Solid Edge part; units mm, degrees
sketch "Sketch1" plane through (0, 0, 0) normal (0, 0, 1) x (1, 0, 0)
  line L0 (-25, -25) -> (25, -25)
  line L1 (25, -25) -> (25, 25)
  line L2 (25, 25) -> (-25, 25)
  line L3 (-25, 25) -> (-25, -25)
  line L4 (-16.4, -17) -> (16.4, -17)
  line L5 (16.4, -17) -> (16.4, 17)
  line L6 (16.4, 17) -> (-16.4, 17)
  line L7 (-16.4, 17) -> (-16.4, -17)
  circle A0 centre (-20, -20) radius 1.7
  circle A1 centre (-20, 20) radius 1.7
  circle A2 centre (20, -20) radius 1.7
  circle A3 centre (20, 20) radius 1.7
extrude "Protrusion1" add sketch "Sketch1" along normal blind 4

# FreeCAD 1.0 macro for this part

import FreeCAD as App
import Part
import Sketcher

doc = App.newDocument("Part")
body = doc.addObject("PartDesign::Body", "Body")

# Sketch on XY plane
sketch1 = body.newObject("Sketcher::SketchObject", "Sketch")
sketch1.AttachmentSupport = (doc.getObject("XY_Plane"), [""])
sketch1.MapMode = "FlatFace"
sketch1.addGeometry(Part.LineSegment(App.Vector(-25, 25, 0), App.Vector(-25, -25, 0)), False)
sketch1.addGeometry(Part.LineSegment(App.Vector(-25, -25, 0), App.Vector(25, -25, 0)), False)
sketch1.addGeometry(Part.LineSegment(App.Vector(25, -25, 0), App.Vector(25, 25, 0)), False)
sketch1.addGeometry(Part.LineSegment(App.Vector(25, 25, 0), App.Vector(-25, 25, 0)), False)
sketch1.addGeometry(Part.Circle(App.Vector(-20, -20, 0), App.Vector(0, 0, 1), 1.7), False)
sketch1.addGeometry(Part.Circle(App.Vector(20, -20, 0), App.Vector(0, 0, 1), 1.7), False)
sketch1.addGeometry(Part.Circle(App.Vector(-20, 20, 0), App.Vector(0, 0, 1), 1.7), False)
sketch1.addGeometry(Part.LineSegment(App.Vector(16.4, -17, 0), App.Vector(-16.4, -17, 0)), False)
sketch1.addGeometry(Part.LineSegment(App.Vector(-16.4, -17, 0), App.Vector(-16.4, 17, 0)), False)
sketch1.addGeometry(Part.LineSegment(App.Vector(-16.4, 17, 0), App.Vector(16.4, 17, 0)), False)
sketch1.addGeometry(Part.LineSegment(App.Vector(16.4, 17, 0), App.Vector(16.4, -17, 0)), False)
sketch1.addGeometry(Part.Circle(App.Vector(20, 20, 0), App.Vector(0, 0, 1), 1.7), False)
sketch1.addConstraint(Sketcher.Constraint("Coincident", 0, 2, 1, 1))
sketch1.addConstraint(Sketcher.Constraint("Coincident", 1, 2, 2, 1))
sketch1.addConstraint(Sketcher.Constraint("Coincident", 2, 2, 3, 1))
sketch1.addConstraint(Sketcher.Constraint("Coincident", 3, 2, 0, 1))
sketch1.addConstraint(Sketcher.Constraint("Coincident", 7, 2, 8, 1))
sketch1.addConstraint(Sketcher.Constraint("Coincident", 8, 2, 9, 1))
sketch1.addConstraint(Sketcher.Constraint("Coincident", 9, 2, 10, 1))
sketch1.addConstraint(Sketcher.Constraint("Coincident", 10, 2, 7, 1))
sketch1.addConstraint(Sketcher.Constraint("Vertical", 0))
sketch1.addConstraint(Sketcher.Constraint("Horizontal", 1))
sketch1.addConstraint(Sketcher.Constraint("Vertical", 2))
sketch1.addConstraint(Sketcher.Constraint("Horizontal", 3))
sketch1.addConstraint(Sketcher.Constraint("Horizontal", 7))
sketch1.addConstraint(Sketcher.Constraint("Vertical", 8))
sketch1.addConstraint(Sketcher.Constraint("Horizontal", 9))
sketch1.addConstraint(Sketcher.Constraint("Vertical", 10))
sketch1.addConstraint(Sketcher.Constraint("Equal", 4, 5))
sketch1.addConstraint(Sketcher.Constraint("Equal", 5, 6))
sketch1.addConstraint(Sketcher.Constraint("Equal", 6, 11))
sketch1.addConstraint(Sketcher.Constraint("Symmetric", 5, 3, 6, 3, -1, 1))
sketch1.addConstraint(Sketcher.Constraint("Symmetric", 4, 3, 11, 3, -1, 1))
sketch1.addConstraint(Sketcher.Constraint("Symmetric", 0, 2, 2, 2, -1, 1))
sketch1.addConstraint(Sketcher.Constraint("Symmetric", 7, 2, 9, 2, -1, 1))
sketch1.addConstraint(Sketcher.Constraint("Symmetric", 4, 3, 5, 3, -2))
sketch1.addConstraint(Sketcher.Constraint("Equal", 3, 0))
sketch1.addConstraint(Sketcher.Constraint("Diameter", 4, 3.4))
sketch1.addConstraint(Sketcher.Constraint("DistanceX", 1, 1, 1, 2, 50.0))
sketch1.addConstraint(Sketcher.Constraint("DistanceY", 8, 1, 8, 2, 34.0))
sketch1.addConstraint(Sketcher.Constraint("DistanceX", 7, 2, 7, 1, 32.8))
sketch1.addConstraint(Sketcher.Constraint("DistanceX", 4, 3, -1, 1, 20.0))
sketch1.addConstraint(Sketcher.Constraint("DistanceY", 4, 3, -1, 1, 20.0))
pad1 = body.newObject("PartDesign::Pad", "Pad")
pad1.Profile = sketch1
pad1.Length = 4

doc.recompute()
